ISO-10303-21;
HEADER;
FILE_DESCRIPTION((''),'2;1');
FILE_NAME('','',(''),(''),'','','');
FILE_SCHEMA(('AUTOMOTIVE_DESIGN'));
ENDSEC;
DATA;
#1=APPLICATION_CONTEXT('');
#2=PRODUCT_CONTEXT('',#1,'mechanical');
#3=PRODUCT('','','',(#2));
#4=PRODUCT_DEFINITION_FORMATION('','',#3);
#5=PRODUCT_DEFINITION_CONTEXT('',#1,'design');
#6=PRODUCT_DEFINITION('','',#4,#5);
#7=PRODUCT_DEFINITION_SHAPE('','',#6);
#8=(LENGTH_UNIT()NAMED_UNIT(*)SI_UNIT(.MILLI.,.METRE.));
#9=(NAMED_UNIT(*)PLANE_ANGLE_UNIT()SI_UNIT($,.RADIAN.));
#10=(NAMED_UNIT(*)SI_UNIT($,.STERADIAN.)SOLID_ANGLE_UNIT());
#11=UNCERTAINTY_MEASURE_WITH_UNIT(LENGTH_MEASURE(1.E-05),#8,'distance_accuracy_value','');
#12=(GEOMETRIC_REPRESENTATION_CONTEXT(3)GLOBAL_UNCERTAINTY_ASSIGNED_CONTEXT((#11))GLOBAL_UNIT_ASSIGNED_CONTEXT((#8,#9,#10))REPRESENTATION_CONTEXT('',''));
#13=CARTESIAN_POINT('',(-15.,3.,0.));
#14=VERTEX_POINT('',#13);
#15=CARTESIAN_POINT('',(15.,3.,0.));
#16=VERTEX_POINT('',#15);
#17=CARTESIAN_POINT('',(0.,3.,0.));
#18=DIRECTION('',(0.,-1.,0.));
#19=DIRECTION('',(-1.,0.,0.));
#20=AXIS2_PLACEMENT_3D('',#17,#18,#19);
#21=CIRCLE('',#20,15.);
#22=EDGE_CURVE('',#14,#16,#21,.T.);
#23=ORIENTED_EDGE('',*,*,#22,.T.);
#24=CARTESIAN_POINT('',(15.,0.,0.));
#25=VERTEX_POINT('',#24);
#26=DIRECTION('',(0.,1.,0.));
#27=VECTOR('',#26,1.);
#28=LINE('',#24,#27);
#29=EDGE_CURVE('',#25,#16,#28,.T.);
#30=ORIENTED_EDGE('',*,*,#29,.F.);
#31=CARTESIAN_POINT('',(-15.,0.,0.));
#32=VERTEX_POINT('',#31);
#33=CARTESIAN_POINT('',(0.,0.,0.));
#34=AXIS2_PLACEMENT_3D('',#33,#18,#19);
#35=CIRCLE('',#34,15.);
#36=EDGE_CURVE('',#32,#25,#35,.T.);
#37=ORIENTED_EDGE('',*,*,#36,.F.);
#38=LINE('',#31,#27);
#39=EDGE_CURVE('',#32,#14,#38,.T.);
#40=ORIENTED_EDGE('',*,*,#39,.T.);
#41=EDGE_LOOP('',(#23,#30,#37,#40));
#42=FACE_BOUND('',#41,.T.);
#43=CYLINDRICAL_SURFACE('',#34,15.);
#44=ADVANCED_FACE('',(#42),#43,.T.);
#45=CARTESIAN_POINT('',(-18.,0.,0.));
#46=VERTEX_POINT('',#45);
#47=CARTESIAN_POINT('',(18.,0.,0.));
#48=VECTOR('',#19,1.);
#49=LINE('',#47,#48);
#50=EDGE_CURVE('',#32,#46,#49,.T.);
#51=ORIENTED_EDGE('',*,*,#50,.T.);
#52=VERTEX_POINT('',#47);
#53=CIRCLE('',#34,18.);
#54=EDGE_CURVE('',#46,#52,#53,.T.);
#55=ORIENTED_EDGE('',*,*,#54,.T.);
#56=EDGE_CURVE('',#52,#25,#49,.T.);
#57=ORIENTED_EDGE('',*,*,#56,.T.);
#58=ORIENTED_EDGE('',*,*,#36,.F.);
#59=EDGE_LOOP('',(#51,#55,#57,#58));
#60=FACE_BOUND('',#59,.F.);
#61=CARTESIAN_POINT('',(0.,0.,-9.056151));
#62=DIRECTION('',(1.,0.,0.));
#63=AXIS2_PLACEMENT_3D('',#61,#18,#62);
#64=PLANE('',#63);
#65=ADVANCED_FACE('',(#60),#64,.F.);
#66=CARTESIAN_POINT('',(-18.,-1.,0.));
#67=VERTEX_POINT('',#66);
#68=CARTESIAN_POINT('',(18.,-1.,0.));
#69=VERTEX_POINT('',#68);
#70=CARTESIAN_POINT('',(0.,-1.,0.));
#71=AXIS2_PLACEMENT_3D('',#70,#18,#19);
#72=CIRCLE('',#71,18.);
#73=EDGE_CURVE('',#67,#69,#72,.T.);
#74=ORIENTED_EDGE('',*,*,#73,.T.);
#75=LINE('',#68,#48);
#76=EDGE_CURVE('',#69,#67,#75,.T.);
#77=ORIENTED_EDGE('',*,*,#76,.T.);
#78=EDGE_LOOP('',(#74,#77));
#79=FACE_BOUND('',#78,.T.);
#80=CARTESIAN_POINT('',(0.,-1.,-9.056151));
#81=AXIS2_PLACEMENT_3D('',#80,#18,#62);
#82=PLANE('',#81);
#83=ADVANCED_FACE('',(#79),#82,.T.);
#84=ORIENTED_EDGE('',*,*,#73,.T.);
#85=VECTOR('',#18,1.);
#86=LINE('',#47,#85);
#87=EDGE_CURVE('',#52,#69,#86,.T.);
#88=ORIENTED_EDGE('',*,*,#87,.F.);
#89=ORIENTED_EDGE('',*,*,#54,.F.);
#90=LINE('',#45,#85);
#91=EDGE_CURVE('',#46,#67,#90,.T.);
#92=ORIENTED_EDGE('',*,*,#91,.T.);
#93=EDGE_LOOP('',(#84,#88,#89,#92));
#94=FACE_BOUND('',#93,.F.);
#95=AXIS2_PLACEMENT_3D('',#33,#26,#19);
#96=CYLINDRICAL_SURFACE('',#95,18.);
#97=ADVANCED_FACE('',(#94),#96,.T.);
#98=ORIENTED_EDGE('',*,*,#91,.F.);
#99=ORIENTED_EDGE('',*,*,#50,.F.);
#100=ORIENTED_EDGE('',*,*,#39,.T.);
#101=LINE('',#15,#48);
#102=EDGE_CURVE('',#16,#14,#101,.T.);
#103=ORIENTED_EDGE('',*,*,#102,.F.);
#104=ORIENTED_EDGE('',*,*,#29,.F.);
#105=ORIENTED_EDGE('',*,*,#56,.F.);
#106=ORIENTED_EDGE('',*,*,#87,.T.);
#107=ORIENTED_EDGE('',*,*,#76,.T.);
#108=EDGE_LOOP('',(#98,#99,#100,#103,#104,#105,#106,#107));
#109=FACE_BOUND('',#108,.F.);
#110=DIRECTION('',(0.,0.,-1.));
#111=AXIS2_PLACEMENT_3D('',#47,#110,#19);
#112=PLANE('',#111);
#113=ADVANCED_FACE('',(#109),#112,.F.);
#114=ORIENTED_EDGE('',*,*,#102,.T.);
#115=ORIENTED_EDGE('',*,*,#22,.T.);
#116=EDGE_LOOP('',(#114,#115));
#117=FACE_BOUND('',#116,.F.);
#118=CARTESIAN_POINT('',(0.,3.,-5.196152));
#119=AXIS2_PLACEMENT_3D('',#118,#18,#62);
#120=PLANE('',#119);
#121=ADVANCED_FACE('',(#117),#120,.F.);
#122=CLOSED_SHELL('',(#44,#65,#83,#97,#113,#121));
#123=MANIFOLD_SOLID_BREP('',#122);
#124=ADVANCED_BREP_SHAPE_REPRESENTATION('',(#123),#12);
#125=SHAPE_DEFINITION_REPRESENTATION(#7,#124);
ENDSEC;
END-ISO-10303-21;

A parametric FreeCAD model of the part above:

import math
import FreeCAD as App
import Part
import Sketcher

V = App.Vector

doc = App.newDocument("Part")
body = doc.addObject("PartDesign::Body", "Body")

# Sketch on XZ plane
sketch1 = doc.addObject("Sketcher::SketchObject", "Sketch")
body.addObject(sketch1)
sketch1.AttachmentSupport = (doc.XZ_Plane, [""])
sketch1.MapMode = "FlatFace"
sketch1.addGeometry(Part.LineSegment(V(15, 0, 0), V(-15, 0, 0)), False)
sketch1.addGeometry(Part.ArcOfCircle(Part.Circle(V(0, 0, 0), V(0, 0, 1), 15), math.radians(180), math.radians(360)), False)
sketch1.addConstraint(Sketcher.Constraint("Coincident", 0, 1, 1, 2))
sketch1.addConstraint(Sketcher.Constraint("Coincident", 1, 1, 0, 2))
sketch1.addConstraint(Sketcher.Constraint("Horizontal", 0))
sketch1.addConstraint(Sketcher.Constraint("Coincident", 1, 3, -1, 1))
sketch1.addConstraint(Sketcher.Constraint("PointOnObject", 0, 1, -1))
sketch1.addConstraint(Sketcher.Constraint("Radius", 1, 15.0))
pad1 = doc.addObject("PartDesign::Pad", "Pad")
body.addObject(pad1)
pad1.Profile = sketch1
pad1.Length = 3
pad1.Reversed = True

# Sketch on XZ plane
sketch2 = doc.addObject("Sketcher::SketchObject", "Sketch001")
body.addObject(sketch2)
sketch2.AttachmentSupport = (doc.XZ_Plane, [""])
sketch2.MapMode = "FlatFace"
sketch2.addGeometry(Part.ArcOfCircle(Part.Circle(V(0, 0, 0), V(0, 0, 1), 18), math.radians(180), math.radians(360)), False)
sketch2.addGeometry(Part.LineSegment(V(18, 0, 0), V(-18, 0, 0)), False)
sketch2.addConstraint(Sketcher.Constraint("Coincident", 0, 1, 1, 2))
sketch2.addConstraint(Sketcher.Constraint("Coincident", 1, 1, 0, 2))
sketch2.addConstraint(Sketcher.Constraint("Horizontal", 1))
sketch2.addConstraint(Sketcher.Constraint("Coincident", 0, 3, -1, 1))
sketch2.addConstraint(Sketcher.Constraint("PointOnObject", 0, 1, -1))
sketch2.addConstraint(Sketcher.Constraint("Radius", 0, 18.0))
pad2 = doc.addObject("PartDesign::Pad", "Pad001")
body.addObject(pad2)
pad2.Profile = sketch2
pad2.Length = 1

doc.recompute()
